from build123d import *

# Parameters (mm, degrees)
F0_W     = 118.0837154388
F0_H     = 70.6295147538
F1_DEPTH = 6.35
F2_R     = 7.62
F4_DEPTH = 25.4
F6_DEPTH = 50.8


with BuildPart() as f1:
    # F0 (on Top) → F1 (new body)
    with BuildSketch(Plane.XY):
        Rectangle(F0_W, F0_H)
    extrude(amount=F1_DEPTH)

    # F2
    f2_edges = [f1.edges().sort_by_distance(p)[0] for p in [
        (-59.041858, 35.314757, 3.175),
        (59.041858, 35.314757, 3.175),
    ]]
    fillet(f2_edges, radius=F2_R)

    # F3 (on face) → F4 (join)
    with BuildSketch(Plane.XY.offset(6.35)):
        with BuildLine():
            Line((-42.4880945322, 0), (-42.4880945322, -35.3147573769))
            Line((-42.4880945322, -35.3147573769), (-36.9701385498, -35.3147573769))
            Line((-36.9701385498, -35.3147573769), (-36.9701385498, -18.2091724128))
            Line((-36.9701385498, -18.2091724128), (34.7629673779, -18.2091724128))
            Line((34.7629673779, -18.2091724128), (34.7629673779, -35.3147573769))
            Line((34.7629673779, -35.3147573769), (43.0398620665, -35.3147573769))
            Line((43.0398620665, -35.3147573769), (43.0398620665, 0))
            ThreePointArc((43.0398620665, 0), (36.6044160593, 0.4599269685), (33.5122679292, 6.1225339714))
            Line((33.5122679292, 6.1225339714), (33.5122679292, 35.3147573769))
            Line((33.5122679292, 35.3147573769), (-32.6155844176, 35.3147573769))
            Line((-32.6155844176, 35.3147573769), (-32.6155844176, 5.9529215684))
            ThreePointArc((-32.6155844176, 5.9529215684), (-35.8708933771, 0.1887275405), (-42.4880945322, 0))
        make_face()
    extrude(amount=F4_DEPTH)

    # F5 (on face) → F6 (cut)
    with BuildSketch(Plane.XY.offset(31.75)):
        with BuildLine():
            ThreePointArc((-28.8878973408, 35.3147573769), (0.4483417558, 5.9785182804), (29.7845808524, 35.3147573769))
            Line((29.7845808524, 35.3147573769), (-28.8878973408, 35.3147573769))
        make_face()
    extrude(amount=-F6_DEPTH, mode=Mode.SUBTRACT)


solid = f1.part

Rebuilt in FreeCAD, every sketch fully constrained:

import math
import FreeCAD as App
import Part
import Sketcher
Q = App.Units.Quantity


def edges_at(feature, points):
    """Names of the edges that pass closest to the given points."""
    edges = feature.Shape.Edges
    near = lambda p: min(range(len(edges)), key=lambda i: edges[i].distToShape(Part.Vertex(*p))[0])
    return sorted({f"Edge{near(p) + 1}" for p in points})


def add_polygon(sketch, points):
    """Adds a closed chain of lines whose ends are joined by coincident constraints."""
    first, n = sketch.GeometryCount, len(points)
    for a, b in zip(points, points[1:] + points[:1]):
        sketch.addGeometry(Part.LineSegment(App.Vector(*a, 0), App.Vector(*b, 0)), False)
    for i in range(n):
        sketch.addConstraint(Sketcher.Constraint("Coincident", first + i, 2, first + (i + 1) % n, 1))

doc = App.newDocument("Part")
params = doc.addObject("Spreadsheet::Sheet", "Params")
for row, (alias, value) in enumerate([
    ("pad1_length", "0.25 in"),
    ("fillet_radius", "0.3 in"),
    ("sketch2_radius", "0.265 in"),
    ("pad2_length", "1 in"),
    ("pocket1_length", "2 in"),
], start=1):
    params.set(f"A{row}", alias)
    params.set(f"B{row}", "=" + value)
    params.setAlias(f"B{row}", alias)

body = doc.addObject("PartDesign::Body", "Body")

# Sketch on XY plane
sketch1 = body.newObject("Sketcher::SketchObject", "Sketch")
sketch1.AttachmentSupport = (doc.getObject("XY_Plane"), [""])
sketch1.MapMode = "FlatFace"
add_polygon(sketch1, [(-59.041858, 35.314757), (-59.041858, -35.314757), (59.041858, -35.314757), (59.041858, 35.314757)])  # lines 0-3
sketch1.addConstraint([
    Sketcher.Constraint("Vertical", 0),
    Sketcher.Constraint("Horizontal", 1),
    Sketcher.Constraint("Vertical", 2),
    Sketcher.Constraint("Horizontal", 3),
    Sketcher.Constraint("Symmetric", 0, 2, 2, 2, -1, 1),
    Sketcher.Constraint("DistanceX", 1, 1, 1, 2, Q("118.083715 mm")),
    Sketcher.Constraint("DistanceY", 0, 2, 0, 1, Q("70.629515 mm")),
])
pad1 = body.newObject("PartDesign::Pad", "Pad")
pad1.Profile = sketch1
pad1.setExpression("Length", "Params.pad1_length")
doc.recompute()

fillet = body.newObject("PartDesign::Fillet", "Fillet")
fillet.Base = (pad1, edges_at(pad1, [(-59.042, 35.315, 3.175), (59.042, 35.315, 3.175)]))
fillet.setExpression("Radius", "Params.fillet_radius")

# Sketch on XY plane
sketch2 = body.newObject("Sketcher::SketchObject", "Sketch001")
sketch2.AttachmentSupport = (doc.getObject("XY_Plane"), [""])
sketch2.MapMode = "FlatFace"
sketch2.AttachmentOffset = App.Placement(App.Vector(0, 0, 0.25 * 25.4), App.Rotation())
sketch2.addGeometry([
    Part.LineSegment(App.Vector(-42.488095, 0, 0), App.Vector(-42.488095, -35.314757, 0)),  # 0
    Part.LineSegment(App.Vector(-42.488095, -35.314757, 0), App.Vector(-36.970139, -35.314757, 0)),  # 1
    Part.LineSegment(App.Vector(-36.970139, -35.314757, 0), App.Vector(-36.970139, -18.209172, 0)),  # 2
    Part.LineSegment(App.Vector(-36.970139, -18.209172, 0), App.Vector(34.762967, -18.209172, 0)),  # 3
    Part.LineSegment(App.Vector(34.762967, -18.209172, 0), App.Vector(34.762967, -35.314757, 0)),  # 4
    Part.LineSegment(App.Vector(34.762967, -35.314757, 0), App.Vector(43.039862, -35.314757, 0)),  # 5
    Part.LineSegment(App.Vector(43.039862, -35.314757, 0), App.Vector(43.039862, 0, 0)),  # 6
    Part.ArcOfCircle(Part.Circle(App.Vector(40.243268, 6.122534, 0), App.Vector(0, 0, 1), 6.731), math.radians(180), math.radians(294.549532)),  # 7
    Part.LineSegment(App.Vector(33.512268, 6.122534, 0), App.Vector(33.512268, 35.314757, 0)),  # 8
    Part.LineSegment(App.Vector(33.512268, 35.314757, 0), App.Vector(-32.615584, 35.314757, 0)),  # 9
    Part.LineSegment(App.Vector(-32.615584, 35.314757, 0), App.Vector(-32.615584, 5.952922, 0)),  # 10
    Part.ArcOfCircle(Part.Circle(App.Vector(-39.346584, 5.952922, 0), App.Vector(0, 0, 1), 6.731), math.radians(-117.821766), math.radians(0)),  # 11
], False)
sketch2.addConstraint([
    Sketcher.Constraint("Coincident", 0, 2, 1, 1),
    Sketcher.Constraint("Coincident", 1, 2, 2, 1),
    Sketcher.Constraint("Coincident", 2, 2, 3, 1),
    Sketcher.Constraint("Coincident", 3, 2, 4, 1),
    Sketcher.Constraint("Coincident", 4, 2, 5, 1),
    Sketcher.Constraint("Coincident", 5, 2, 6, 1),
    Sketcher.Constraint("Coincident", 6, 2, 7, 2),
    Sketcher.Constraint("Tangent", 7, 1, 8, 1),
    Sketcher.Constraint("Coincident", 8, 2, 9, 1),
    Sketcher.Constraint("Coincident", 9, 2, 10, 1),
    Sketcher.Constraint("Tangent", 10, 2, 11, 2),
    Sketcher.Constraint("Coincident", 11, 1, 0, 1),
    Sketcher.Constraint("Vertical", 0),
    Sketcher.Constraint("Horizontal", 1),
    Sketcher.Constraint("Vertical", 2),
    Sketcher.Constraint("Horizontal", 3),
    Sketcher.Constraint("Vertical", 4),
    Sketcher.Constraint("Horizontal", 5),
    Sketcher.Constraint("Vertical", 6),
    Sketcher.Constraint("Vertical", 8),
    Sketcher.Constraint("Horizontal", 9),
    Sketcher.Constraint("Vertical", 10),
    Sketcher.Constraint("Equal", 7, 11),
    Sketcher.Constraint("PointOnObject", 6, 2, -1),
    Sketcher.Constraint("PointOnObject", 11, 1, -1),
    Sketcher.Constraint("Horizontal", 1, 2, 4, 2),
    Sketcher.Constraint("Radius", 7, Q("0.265 in")),
    Sketcher.Constraint("DistanceX", 1, 2, 5, 2, Q("3.15 in")),
    Sketcher.Constraint("DistanceY", 8, 1, 8, 2, Q("1.1493001 in")),
    Sketcher.Constraint("DistanceX", 3, 2, 7, 3, Q("5.480301 mm")),
    Sketcher.Constraint("DistanceX", 1, 1, 1, 2, Q("5.517956 mm")),
    Sketcher.Constraint("DistanceX", 3, 1, 3, 2, Q("71.733106 mm")),
    Sketcher.Constraint("DistanceX", 9, 2, 9, 1, Q("66.127852 mm")),
    Sketcher.Constraint("DistanceY", 0, 2, 0, 1, Q("35.314757 mm")),
    Sketcher.Constraint("DistanceY", 2, 1, 2, 2, Q("17.105585 mm")),
    Sketcher.Constraint("DistanceX", 1, 2, -1, 1, Q("36.970139 mm")),
])
sketch2.setExpression("Constraints[26]", "Params.sketch2_radius")
pad2 = body.newObject("PartDesign::Pad", "Pad001")
pad2.Profile = sketch2
pad2.setExpression("Length", "Params.pad2_length")

# Sketch on XY plane
sketch3 = body.newObject("Sketcher::SketchObject", "Sketch002")
sketch3.AttachmentSupport = (doc.getObject("XY_Plane"), [""])
sketch3.MapMode = "FlatFace"
sketch3.AttachmentOffset = App.Placement(App.Vector(0, 0, 1.25 * 25.4), App.Rotation())
sketch3.addGeometry([
    Part.ArcOfCircle(Part.Circle(App.Vector(0.448342, 35.314757, 0), App.Vector(0, 0, 1), 29.336239), math.radians(180), math.radians(360)),
    Part.LineSegment(App.Vector(29.784581, 35.314757, 0), App.Vector(-28.887897, 35.314757, 0)),
], False)
sketch3.addConstraint([
    Sketcher.Constraint("Coincident", 0, 1, 1, 2),
    Sketcher.Constraint("Coincident", 1, 1, 0, 2),
    Sketcher.Constraint("Horizontal", 1),
    Sketcher.Constraint("Radius", 0, Q("29.336239 mm")),
    Sketcher.Constraint("DistanceX", -1, 1, 0, 3, Q("0.448342 mm")),
    Sketcher.Constraint("DistanceY", -1, 1, 0, 3, Q("35.314757 mm")),
    Sketcher.Constraint("DistanceY", -1, 1, 0, 1, Q("35.314757 mm")),
])
pocket1 = body.newObject("PartDesign::Pocket", "Pocket")
pocket1.Profile = sketch3
pocket1.setExpression("Length", "Params.pocket1_length")

doc.recompute()
